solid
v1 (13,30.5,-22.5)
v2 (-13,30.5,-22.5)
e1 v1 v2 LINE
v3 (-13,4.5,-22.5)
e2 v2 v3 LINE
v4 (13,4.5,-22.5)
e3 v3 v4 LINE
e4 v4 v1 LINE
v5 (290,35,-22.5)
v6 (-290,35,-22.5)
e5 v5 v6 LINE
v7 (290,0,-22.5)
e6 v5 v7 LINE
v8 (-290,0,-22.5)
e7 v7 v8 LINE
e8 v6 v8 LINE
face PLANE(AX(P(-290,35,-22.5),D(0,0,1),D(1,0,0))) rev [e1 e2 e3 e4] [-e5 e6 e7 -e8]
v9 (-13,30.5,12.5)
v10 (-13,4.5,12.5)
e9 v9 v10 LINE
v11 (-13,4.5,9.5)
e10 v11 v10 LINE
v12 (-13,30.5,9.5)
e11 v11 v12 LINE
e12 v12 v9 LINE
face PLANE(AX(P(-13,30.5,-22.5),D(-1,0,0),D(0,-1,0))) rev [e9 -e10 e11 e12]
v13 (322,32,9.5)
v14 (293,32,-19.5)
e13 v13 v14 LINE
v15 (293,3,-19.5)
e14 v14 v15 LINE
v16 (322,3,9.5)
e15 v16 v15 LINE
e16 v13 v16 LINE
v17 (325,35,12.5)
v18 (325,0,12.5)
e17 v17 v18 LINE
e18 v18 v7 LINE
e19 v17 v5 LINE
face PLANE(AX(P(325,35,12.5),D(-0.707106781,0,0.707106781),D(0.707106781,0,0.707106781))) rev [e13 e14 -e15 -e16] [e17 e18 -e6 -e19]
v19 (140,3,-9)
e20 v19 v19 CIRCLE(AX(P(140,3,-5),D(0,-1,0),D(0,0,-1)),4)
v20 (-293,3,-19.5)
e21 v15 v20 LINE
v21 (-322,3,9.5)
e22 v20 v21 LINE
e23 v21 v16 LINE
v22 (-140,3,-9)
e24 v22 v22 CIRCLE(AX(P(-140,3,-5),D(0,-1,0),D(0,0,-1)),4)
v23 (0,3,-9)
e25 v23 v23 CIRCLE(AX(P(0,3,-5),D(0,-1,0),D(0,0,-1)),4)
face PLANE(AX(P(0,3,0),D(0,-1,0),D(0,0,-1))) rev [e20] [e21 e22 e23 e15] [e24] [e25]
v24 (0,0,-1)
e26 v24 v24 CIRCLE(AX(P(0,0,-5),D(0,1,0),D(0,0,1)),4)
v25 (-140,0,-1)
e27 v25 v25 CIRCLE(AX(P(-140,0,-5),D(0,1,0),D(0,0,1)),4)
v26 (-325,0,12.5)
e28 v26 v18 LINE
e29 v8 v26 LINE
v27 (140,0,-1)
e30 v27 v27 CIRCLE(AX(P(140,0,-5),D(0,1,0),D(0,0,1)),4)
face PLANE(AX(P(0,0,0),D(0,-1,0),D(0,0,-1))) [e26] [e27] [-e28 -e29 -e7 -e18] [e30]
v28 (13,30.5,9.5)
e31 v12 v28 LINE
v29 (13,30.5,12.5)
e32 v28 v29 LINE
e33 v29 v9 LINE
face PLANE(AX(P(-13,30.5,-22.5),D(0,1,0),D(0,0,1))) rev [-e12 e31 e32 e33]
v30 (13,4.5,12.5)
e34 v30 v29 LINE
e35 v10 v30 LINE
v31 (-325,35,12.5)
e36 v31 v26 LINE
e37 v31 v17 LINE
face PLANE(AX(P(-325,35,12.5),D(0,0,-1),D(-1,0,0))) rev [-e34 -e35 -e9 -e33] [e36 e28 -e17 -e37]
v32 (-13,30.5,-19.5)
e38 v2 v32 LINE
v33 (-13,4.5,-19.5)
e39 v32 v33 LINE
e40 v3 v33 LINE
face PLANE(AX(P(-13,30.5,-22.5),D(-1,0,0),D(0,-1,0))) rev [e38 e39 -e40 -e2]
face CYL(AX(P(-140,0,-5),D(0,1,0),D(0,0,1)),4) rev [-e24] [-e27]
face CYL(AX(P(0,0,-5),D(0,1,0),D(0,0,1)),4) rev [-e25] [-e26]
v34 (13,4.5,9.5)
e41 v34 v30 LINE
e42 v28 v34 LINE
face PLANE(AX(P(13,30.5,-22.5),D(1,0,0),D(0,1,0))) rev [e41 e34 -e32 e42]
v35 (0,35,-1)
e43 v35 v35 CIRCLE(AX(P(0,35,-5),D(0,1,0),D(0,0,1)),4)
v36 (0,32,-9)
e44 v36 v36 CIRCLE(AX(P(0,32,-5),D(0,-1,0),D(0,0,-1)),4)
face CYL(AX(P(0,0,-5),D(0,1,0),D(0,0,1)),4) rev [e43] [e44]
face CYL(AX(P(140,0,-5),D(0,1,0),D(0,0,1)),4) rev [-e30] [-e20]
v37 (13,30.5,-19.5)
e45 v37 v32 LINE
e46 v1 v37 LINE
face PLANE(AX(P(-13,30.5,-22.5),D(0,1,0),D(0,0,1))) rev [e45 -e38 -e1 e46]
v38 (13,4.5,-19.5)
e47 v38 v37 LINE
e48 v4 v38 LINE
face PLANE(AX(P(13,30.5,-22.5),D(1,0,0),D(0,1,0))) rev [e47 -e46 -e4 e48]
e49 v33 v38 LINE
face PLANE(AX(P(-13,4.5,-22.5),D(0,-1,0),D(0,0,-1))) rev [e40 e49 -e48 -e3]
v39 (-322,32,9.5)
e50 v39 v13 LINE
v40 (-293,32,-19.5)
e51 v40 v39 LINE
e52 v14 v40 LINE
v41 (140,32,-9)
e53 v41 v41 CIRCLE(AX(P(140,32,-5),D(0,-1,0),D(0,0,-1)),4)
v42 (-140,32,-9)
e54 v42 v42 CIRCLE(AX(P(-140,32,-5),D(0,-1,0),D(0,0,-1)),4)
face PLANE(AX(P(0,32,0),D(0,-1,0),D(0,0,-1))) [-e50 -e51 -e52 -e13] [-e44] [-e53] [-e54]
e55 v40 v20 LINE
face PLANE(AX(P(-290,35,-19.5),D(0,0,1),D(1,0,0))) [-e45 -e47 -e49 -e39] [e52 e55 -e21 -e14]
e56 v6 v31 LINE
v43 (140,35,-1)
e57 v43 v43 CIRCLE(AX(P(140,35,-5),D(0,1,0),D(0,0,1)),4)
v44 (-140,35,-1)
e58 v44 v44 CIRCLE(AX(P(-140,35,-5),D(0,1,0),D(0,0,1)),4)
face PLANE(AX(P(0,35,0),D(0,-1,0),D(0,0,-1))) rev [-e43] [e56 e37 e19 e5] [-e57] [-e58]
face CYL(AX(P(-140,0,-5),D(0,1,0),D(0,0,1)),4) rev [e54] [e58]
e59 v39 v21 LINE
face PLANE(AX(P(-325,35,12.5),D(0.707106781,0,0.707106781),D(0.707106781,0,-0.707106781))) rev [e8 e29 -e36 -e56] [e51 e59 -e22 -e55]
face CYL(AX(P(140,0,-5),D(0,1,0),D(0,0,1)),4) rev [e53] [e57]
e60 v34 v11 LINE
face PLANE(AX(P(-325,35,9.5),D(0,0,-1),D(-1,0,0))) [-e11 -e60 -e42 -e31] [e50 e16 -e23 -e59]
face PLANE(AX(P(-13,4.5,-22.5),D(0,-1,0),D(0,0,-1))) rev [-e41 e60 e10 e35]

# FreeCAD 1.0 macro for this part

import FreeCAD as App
import Part
import Sketcher

V = App.Vector


def faces_at(feature, points):
    """Names of the faces that lie closest to the given points."""
    faces = feature.Shape.Faces
    near = lambda p: min(range(len(faces)), key=lambda i: faces[i].distToShape(Part.Vertex(*p))[0])
    return sorted({f"Face{near(p) + 1}" for p in points})


def add_polygon(sketch, points):
    """Adds a closed chain of lines whose ends are joined by coincident constraints."""
    first, n = sketch.GeometryCount, len(points)
    for a, b in zip(points, points[1:] + points[:1]):
        sketch.addGeometry(Part.LineSegment(App.Vector(*a, 0), App.Vector(*b, 0)), False)
    for i in range(n):
        sketch.addConstraint(Sketcher.Constraint("Coincident", first + i, 2, first + (i + 1) % n, 1))

doc = App.newDocument("Part")
params = doc.addObject("Spreadsheet::Sheet", "Params")
for row, (alias, value) in enumerate([
    ("sketch1_width", "650 mm"),
    ("sketch1_width2", "580 mm"),
    ("pad1_length", "35 mm"),
    ("thickness_wall", "3 mm"),
    ("sketch2_width", "26 mm"),
    ("sketch3_diameter", "8 mm"),
], start=1):
    params.set(f"A{row}", alias)
    params.set(f"B{row}", "=" + value)
    params.setAlias(f"B{row}", alias)

body = doc.addObject("PartDesign::Body", "Body")

sketch1 = body.newObject("Sketcher::SketchObject", "Sketch")
sketch1.AttachmentSupport = (doc.getObject("XZ_Plane"), [""])
sketch1.MapMode = "FlatFace"
add_polygon(sketch1, [(-290, -22.5), (-325, 12.5), (325, 12.5), (290, -22.5)])
sketch1.addConstraint(Sketcher.Constraint("Horizontal", 1))
sketch1.addConstraint(Sketcher.Constraint("Horizontal", 3))
sketch1.addConstraint(Sketcher.Constraint("Perpendicular", 0, 2))
sketch1.addConstraint(Sketcher.Constraint("Equal", 0, 2))
sketch1.addConstraint(Sketcher.Constraint("DistanceX", 1, 1, 1, 2, 650.0))
sketch1.addConstraint(Sketcher.Constraint("DistanceX", 3, 2, 3, 1, 580.0))
sketch1.addConstraint(Sketcher.Constraint("DistanceX", 0, 2, -1, 1, 325.0))
sketch1.addConstraint(Sketcher.Constraint("DistanceY", -1, 1, 0, 2, 12.5))
sketch1.setExpression("Constraints[8]", "Params.sketch1_width")
sketch1.setExpression("Constraints[9]", "Params.sketch1_width2")
pad1 = body.newObject("PartDesign::Pad", "Pad")
pad1.Profile = sketch1
pad1.setExpression("Length", "Params.pad1_length")
pad1.Reversed = True
doc.recompute()

thickness = body.newObject("PartDesign::Thickness", "Thickness")
thickness.Base = (pad1, faces_at(pad1, [(-307.5, 17.5, -5), (307.5, 17.5, -5)]))
thickness.setExpression("Value", "Params.thickness_wall")
thickness.Reversed = True
thickness.Join = "Intersection"

sketch2 = body.newObject("Sketcher::SketchObject", "Sketch001")
sketch2.AttachmentSupport = (doc.getObject("XY_Plane"), [""])
sketch2.MapMode = "FlatFace"
sketch2.AttachmentOffset = App.Placement(V(0, 0, 12.5), App.Rotation())
add_polygon(sketch2, [(-13, 30.5), (-13, 4.5), (13, 4.5), (13, 30.5)])
sketch2.addConstraint(Sketcher.Constraint("Vertical", 0))
sketch2.addConstraint(Sketcher.Constraint("Horizontal", 1))
sketch2.addConstraint(Sketcher.Constraint("Vertical", 2))
sketch2.addConstraint(Sketcher.Constraint("Horizontal", 3))
sketch2.addConstraint(Sketcher.Constraint("Equal", 3, 0))
sketch2.addConstraint(Sketcher.Constraint("DistanceX", 1, 1, 1, 2, 26.0))
sketch2.addConstraint(Sketcher.Constraint("DistanceX", 0, 2, -1, 1, 13.0))
sketch2.addConstraint(Sketcher.Constraint("DistanceY", -1, 1, 0, 2, 4.5))
sketch2.setExpression("Constraints[9]", "Params.sketch2_width")
pocket1 = body.newObject("PartDesign::Pocket", "Pocket")
pocket1.Profile = sketch2
pocket1.Type = "ThroughAll"

sketch3 = body.newObject("Sketcher::SketchObject", "Sketch002")
sketch3.AttachmentSupport = (doc.getObject("XZ_Plane"), [""])
sketch3.MapMode = "FlatFace"
sketch3.AttachmentOffset = App.Placement(V(0, 0, -35), App.Rotation())
sketch3.addGeometry(Part.Circle(V(0, -5, 0), V(0, 0, 1), 4), False)
sketch3.addGeometry(Part.Circle(V(140, -5, 0), V(0, 0, 1), 4), False)
sketch3.addGeometry(Part.Circle(V(-140, -5, 0), V(0, 0, 1), 4), False)
sketch3.addConstraint(Sketcher.Constraint("Equal", 0, 1))
sketch3.addConstraint(Sketcher.Constraint("Equal", 1, 2))
sketch3.addConstraint(Sketcher.Constraint("Symmetric", 1, 3, 2, 3, -2))
sketch3.addConstraint(Sketcher.Constraint("PointOnObject", 0, 3, -2))
sketch3.addConstraint(Sketcher.Constraint("Horizontal", 0, 3, 1, 3))
sketch3.addConstraint(Sketcher.Constraint("Diameter", 0, 8.0))
sketch3.addConstraint(Sketcher.Constraint("DistanceY", 0, 3, -1, 1, 5.0))
sketch3.addConstraint(Sketcher.Constraint("DistanceX", -1, 1, 1, 3, 140.0))
sketch3.setExpression("Constraints[5]", "Params.sketch3_diameter")
pocket2 = body.newObject("PartDesign::Pocket", "Pocket001")
pocket2.Profile = sketch3
pocket2.Type = "ThroughAll"
pocket2.Reversed = True

doc.recompute()
